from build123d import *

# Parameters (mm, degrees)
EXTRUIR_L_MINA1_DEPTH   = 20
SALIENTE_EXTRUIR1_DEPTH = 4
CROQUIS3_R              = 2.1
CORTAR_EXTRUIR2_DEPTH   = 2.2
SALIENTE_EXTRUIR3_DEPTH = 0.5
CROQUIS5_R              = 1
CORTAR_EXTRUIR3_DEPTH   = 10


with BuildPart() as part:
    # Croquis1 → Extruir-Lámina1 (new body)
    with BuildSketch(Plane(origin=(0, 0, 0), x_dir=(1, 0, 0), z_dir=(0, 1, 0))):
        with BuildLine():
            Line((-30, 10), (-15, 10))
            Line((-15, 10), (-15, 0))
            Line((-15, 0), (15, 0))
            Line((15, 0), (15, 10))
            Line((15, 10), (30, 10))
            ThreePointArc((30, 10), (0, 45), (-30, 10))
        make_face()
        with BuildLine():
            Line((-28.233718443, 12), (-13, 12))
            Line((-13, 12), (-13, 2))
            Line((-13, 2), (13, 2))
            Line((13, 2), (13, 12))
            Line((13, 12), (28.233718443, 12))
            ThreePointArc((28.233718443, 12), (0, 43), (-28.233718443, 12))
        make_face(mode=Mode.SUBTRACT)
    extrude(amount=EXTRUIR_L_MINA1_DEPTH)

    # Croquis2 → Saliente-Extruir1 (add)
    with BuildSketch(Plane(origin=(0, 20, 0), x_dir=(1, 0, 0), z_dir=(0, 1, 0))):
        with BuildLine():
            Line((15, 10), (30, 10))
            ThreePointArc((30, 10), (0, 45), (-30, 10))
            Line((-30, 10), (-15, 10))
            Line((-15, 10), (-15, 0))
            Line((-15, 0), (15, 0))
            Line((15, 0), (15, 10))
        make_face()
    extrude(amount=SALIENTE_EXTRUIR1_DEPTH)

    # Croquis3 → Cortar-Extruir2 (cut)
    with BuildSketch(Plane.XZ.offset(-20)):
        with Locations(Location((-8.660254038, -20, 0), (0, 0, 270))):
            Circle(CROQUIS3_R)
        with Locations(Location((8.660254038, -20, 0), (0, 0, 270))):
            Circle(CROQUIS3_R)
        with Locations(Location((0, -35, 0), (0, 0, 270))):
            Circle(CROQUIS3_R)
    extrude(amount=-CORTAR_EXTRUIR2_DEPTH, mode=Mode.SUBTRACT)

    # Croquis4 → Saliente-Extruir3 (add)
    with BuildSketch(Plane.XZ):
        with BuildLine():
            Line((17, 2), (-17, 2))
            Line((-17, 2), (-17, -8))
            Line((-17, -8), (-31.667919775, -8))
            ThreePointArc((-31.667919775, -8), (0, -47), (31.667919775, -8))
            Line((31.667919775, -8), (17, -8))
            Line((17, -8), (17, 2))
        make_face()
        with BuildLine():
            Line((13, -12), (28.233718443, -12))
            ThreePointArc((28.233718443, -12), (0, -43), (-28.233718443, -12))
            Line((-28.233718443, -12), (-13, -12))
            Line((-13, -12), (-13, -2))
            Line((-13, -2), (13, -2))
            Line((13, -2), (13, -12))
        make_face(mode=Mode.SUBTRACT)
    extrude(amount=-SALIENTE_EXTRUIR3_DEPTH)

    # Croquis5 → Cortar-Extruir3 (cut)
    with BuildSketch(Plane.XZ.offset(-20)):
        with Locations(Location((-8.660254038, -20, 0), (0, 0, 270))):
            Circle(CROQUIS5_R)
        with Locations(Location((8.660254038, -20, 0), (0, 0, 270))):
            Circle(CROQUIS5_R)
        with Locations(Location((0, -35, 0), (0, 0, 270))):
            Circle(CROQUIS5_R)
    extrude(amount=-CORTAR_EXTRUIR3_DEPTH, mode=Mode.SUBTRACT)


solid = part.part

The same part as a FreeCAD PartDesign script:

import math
import FreeCAD as App
import Part
import Sketcher

V = App.Vector

doc = App.newDocument("Part")
body = doc.addObject("PartDesign::Body", "Body")

# Sketch on XZ plane
sketch1 = doc.addObject("Sketcher::SketchObject", "Sketch")
body.addObject(sketch1)
sketch1.AttachmentSupport = (doc.XZ_Plane, [""])
sketch1.MapMode = "FlatFace"
sketch1.addGeometry([
    Part.LineSegment(V(-30, -10, 0), V(-15, -10, 0)),  # 0
    Part.LineSegment(V(-15, -10, 0), V(-15, 0, 0)),  # 1
    Part.LineSegment(V(-15, 0, 0), V(15, 0, 0)),  # 2
    Part.LineSegment(V(15, 0, 0), V(15, -10, 0)),  # 3
    Part.LineSegment(V(15, -10, 0), V(30, -10, 0)),  # 4
    Part.ArcOfCircle(Part.Circle(V(0, -14.642857, 0), V(0, 0, 1), 30.357143), math.radians(171.202589), math.radians(368.797411)),  # 5
    Part.LineSegment(V(-13, -12, 0), V(-28.233718, -12, 0)),  # 6
    Part.ArcOfCircle(Part.Circle(V(0, -14.642857, 0), V(0, 0, 1), 28.357143), math.radians(174.65233), math.radians(365.34767)),  # 7
    Part.LineSegment(V(28.233718, -12, 0), V(13, -12, 0)),  # 8
    Part.LineSegment(V(13, -12, 0), V(13, -2, 0)),  # 9
    Part.LineSegment(V(13, -2, 0), V(-13, -2, 0)),  # 10
    Part.LineSegment(V(-13, -2, 0), V(-13, -12, 0)),  # 11
], False)
sketch1.addConstraint([
    Sketcher.Constraint("Coincident", 0, 2, 1, 1),
    Sketcher.Constraint("Coincident", 1, 2, 2, 1),
    Sketcher.Constraint("Coincident", 2, 2, 3, 1),
    Sketcher.Constraint("Coincident", 3, 2, 4, 1),
    Sketcher.Constraint("Coincident", 4, 2, 5, 2),
    Sketcher.Constraint("Coincident", 5, 1, 0, 1),
    Sketcher.Constraint("Coincident", 6, 2, 7, 1),
    Sketcher.Constraint("Coincident", 7, 2, 8, 1),
    Sketcher.Constraint("Coincident", 8, 2, 9, 1),
    Sketcher.Constraint("Coincident", 9, 2, 10, 1),
    Sketcher.Constraint("Coincident", 10, 2, 11, 1),
    Sketcher.Constraint("Coincident", 11, 2, 6, 1),
    Sketcher.Constraint("Horizontal", 0),
    Sketcher.Constraint("Vertical", 1),
    Sketcher.Constraint("Horizontal", 2),
    Sketcher.Constraint("Vertical", 3),
    Sketcher.Constraint("Horizontal", 4),
    Sketcher.Constraint("Horizontal", 6),
    Sketcher.Constraint("Horizontal", 8),
    Sketcher.Constraint("Vertical", 9),
    Sketcher.Constraint("Horizontal", 10),
    Sketcher.Constraint("Vertical", 11),
    Sketcher.Constraint("Coincident", 7, 3, 5, 3),
    Sketcher.Constraint("Symmetric", 1, 2, 2, 2, -1, 1),
    Sketcher.Constraint("Symmetric", 4, 2, 5, 1, -2),
    Sketcher.Constraint("Symmetric", 8, 2, 11, 2, -2),
    Sketcher.Constraint("Equal", 3, 9),
    Sketcher.Constraint("DistanceX", 0, 1, 0, 2, 15.0),
    Sketcher.Constraint("DistanceX", 2, 1, 2, 2, 30.0),
    Sketcher.Constraint("DistanceX", 10, 2, 10, 1, 26.0),
    Sketcher.Constraint("DistanceY", 1, 1, 1, 2, 10.0),
    Sketcher.Constraint("DistanceY", 6, 2, -1, 1, 12.0),
    Sketcher.Constraint("Radius", 5, 30.357143),
    Sketcher.Constraint("Radius", 7, 28.357143),
])
pad1 = doc.addObject("PartDesign::Pad", "Pad")
body.addObject(pad1)
pad1.Profile = sketch1
pad1.Length = 20
pad1.Reversed = True

# Sketch on XZ plane
sketch2 = doc.addObject("Sketcher::SketchObject", "Sketch001")
body.addObject(sketch2)
sketch2.AttachmentSupport = (doc.XZ_Plane, [""])
sketch2.MapMode = "FlatFace"
sketch2.AttachmentOffset = App.Placement(V(0, 0, -20), App.Rotation())
sketch2.addGeometry([
    Part.LineSegment(V(15, -10, 0), V(30, -10, 0)),  # 0
    Part.ArcOfCircle(Part.Circle(V(0, -14.642857, 0), V(0, 0, 1), 30.357143), math.radians(171.202589), math.radians(368.797411)),  # 1
    Part.LineSegment(V(-30, -10, 0), V(-15, -10, 0)),  # 2
    Part.LineSegment(V(-15, -10, 0), V(-15, 0, 0)),  # 3
    Part.LineSegment(V(-15, 0, 0), V(15, 0, 0)),  # 4
    Part.LineSegment(V(15, 0, 0), V(15, -10, 0)),  # 5
], False)
sketch2.addConstraint([
    Sketcher.Constraint("Coincident", 0, 2, 1, 2),
    Sketcher.Constraint("Coincident", 1, 1, 2, 1),
    Sketcher.Constraint("Coincident", 2, 2, 3, 1),
    Sketcher.Constraint("Coincident", 3, 2, 4, 1),
    Sketcher.Constraint("Coincident", 4, 2, 5, 1),
    Sketcher.Constraint("Coincident", 5, 2, 0, 1),
    Sketcher.Constraint("Horizontal", 0),
    Sketcher.Constraint("Horizontal", 2),
    Sketcher.Constraint("Vertical", 3),
    Sketcher.Constraint("Horizontal", 4),
    Sketcher.Constraint("Vertical", 5),
    Sketcher.Constraint("Symmetric", 3, 2, 4, 2, -1, 1),
    Sketcher.Constraint("Symmetric", 0, 2, 1, 1, -2),
    Sketcher.Constraint("DistanceX", 0, 1, 0, 2, 15.0),
    Sketcher.Constraint("DistanceX", 4, 1, 4, 2, 30.0),
    Sketcher.Constraint("DistanceY", 3, 1, 3, 2, 10.0),
    Sketcher.Constraint("Radius", 1, 30.357143),
])
pad2 = doc.addObject("PartDesign::Pad", "Pad001")
body.addObject(pad2)
pad2.Profile = sketch2
pad2.Length = 4
pad2.Reversed = True

# Sketch on XZ plane
sketch3 = doc.addObject("Sketcher::SketchObject", "Sketch002")
body.addObject(sketch3)
sketch3.AttachmentSupport = (doc.XZ_Plane, [""])
sketch3.MapMode = "FlatFace"
sketch3.AttachmentOffset = App.Placement(V(0, 0, -20), App.Rotation())
sketch3.addGeometry([
    Part.Circle(V(-8.660254, -20, 0), V(0, 0, 1), 2.1),
    Part.Circle(V(8.660254, -20, 0), V(0, 0, 1), 2.1),
    Part.Circle(V(0, -35, 0), V(0, 0, 1), 2.1),
], False)
sketch3.addConstraint([
    Sketcher.Constraint("Equal", 0, 1),
    Sketcher.Constraint("Equal", 1, 2),
    Sketcher.Constraint("Symmetric", 0, 3, 1, 3, -2),
    Sketcher.Constraint("PointOnObject", 2, 3, -2),
    Sketcher.Constraint("Diameter", 0, 4.2),
    Sketcher.Constraint("DistanceY", 0, 3, -1, 1, 20.0),
    Sketcher.Constraint("DistanceY", 2, 3, -1, 1, 35.0),
    Sketcher.Constraint("DistanceX", 0, 3, 1, 3, 17.320508),
])
pocket1 = doc.addObject("PartDesign::Pocket", "Pocket")
body.addObject(pocket1)
pocket1.Profile = sketch3
pocket1.Length = 2.2

# Sketch on XZ plane
sketch4 = doc.addObject("Sketcher::SketchObject", "Sketch003")
body.addObject(sketch4)
sketch4.AttachmentSupport = (doc.XZ_Plane, [""])
sketch4.MapMode = "FlatFace"
sketch4.addGeometry([
    Part.LineSegment(V(17, 2, 0), V(-17, 2, 0)),  # 0
    Part.LineSegment(V(-17, 2, 0), V(-17, -8, 0)),  # 1
    Part.LineSegment(V(-17, -8, 0), V(-31.66792, -8, 0)),  # 2
    Part.ArcOfCircle(Part.Circle(V(0, -14.642857, 0), V(0, 0, 1), 32.357143), math.radians(168.153055), math.radians(371.846945)),  # 3
    Part.LineSegment(V(31.66792, -8, 0), V(17, -8, 0)),  # 4
    Part.LineSegment(V(17, -8, 0), V(17, 2, 0)),  # 5
    Part.LineSegment(V(13, -2, 0), V(13, -12, 0)),  # 6
    Part.LineSegment(V(13, -12, 0), V(28.233718, -12, 0)),  # 7
    Part.ArcOfCircle(Part.Circle(V(0, -14.642857, 0), V(0, 0, 1), 28.357143), math.radians(174.65233), math.radians(365.34767)),  # 8
    Part.LineSegment(V(-28.233718, -12, 0), V(-13, -12, 0)),  # 9
    Part.LineSegment(V(-13, -12, 0), V(-13, -2, 0)),  # 10
    Part.LineSegment(V(-13, -2, 0), V(13, -2, 0)),  # 11
], False)
sketch4.addConstraint([
    Sketcher.Constraint("Coincident", 0, 2, 1, 1),
    Sketcher.Constraint("Coincident", 1, 2, 2, 1),
    Sketcher.Constraint("Coincident", 2, 2, 3, 1),
    Sketcher.Constraint("Coincident", 3, 2, 4, 1),
    Sketcher.Constraint("Coincident", 4, 2, 5, 1),
    Sketcher.Constraint("Coincident", 5, 2, 0, 1),
    Sketcher.Constraint("Coincident", 6, 2, 7, 1),
    Sketcher.Constraint("Coincident", 7, 2, 8, 2),
    Sketcher.Constraint("Coincident", 8, 1, 9, 1),
    Sketcher.Constraint("Coincident", 9, 2, 10, 1),
    Sketcher.Constraint("Coincident", 10, 2, 11, 1),
    Sketcher.Constraint("Coincident", 11, 2, 6, 1),
    Sketcher.Constraint("Horizontal", 0),
    Sketcher.Constraint("Vertical", 1),
    Sketcher.Constraint("Horizontal", 2),
    Sketcher.Constraint("Horizontal", 4),
    Sketcher.Constraint("Vertical", 5),
    Sketcher.Constraint("Vertical", 6),
    Sketcher.Constraint("Horizontal", 7),
    Sketcher.Constraint("Horizontal", 9),
    Sketcher.Constraint("Vertical", 10),
    Sketcher.Constraint("Horizontal", 11),
    Sketcher.Constraint("Coincident", 8, 3, 3, 3),
    Sketcher.Constraint("Symmetric", 2, 2, 3, 2, -2),
    Sketcher.Constraint("Symmetric", 6, 2, 9, 2, -2),
    Sketcher.Constraint("Equal", 2, 4),
    Sketcher.Constraint("Equal", 5, 6),
    Sketcher.Constraint("DistanceX", 0, 2, 0, 1, 34.0),
    Sketcher.Constraint("DistanceX", 11, 1, 11, 2, 26.0),
    Sketcher.Constraint("DistanceY", 1, 2, 1, 1, 10.0),
    Sketcher.Constraint("DistanceY", -1, 1, 0, 2, 2.0),
    Sketcher.Constraint("DistanceY", 6, 2, -1, 1, 12.0),
    Sketcher.Constraint("Radius", 3, 32.357143),
    Sketcher.Constraint("Radius", 8, 28.357143),
    Sketcher.Constraint("DistanceX", 2, 2, 2, 1, 14.66792),
])
pad3 = doc.addObject("PartDesign::Pad", "Pad002")
body.addObject(pad3)
pad3.Profile = sketch4
pad3.Length = 0.5
pad3.Reversed = True

# Sketch on XZ plane
sketch5 = doc.addObject("Sketcher::SketchObject", "Sketch004")
body.addObject(sketch5)
sketch5.AttachmentSupport = (doc.XZ_Plane, [""])
sketch5.MapMode = "FlatFace"
sketch5.AttachmentOffset = App.Placement(V(0, 0, -20), App.Rotation())
sketch5.addGeometry([
    Part.Circle(V(-8.660254, -20, 0), V(0, 0, 1), 1),
    Part.Circle(V(8.660254, -20, 0), V(0, 0, 1), 1),
    Part.Circle(V(0, -35, 0), V(0, 0, 1), 1),
], False)
sketch5.addConstraint([
    Sketcher.Constraint("Equal", 0, 1),
    Sketcher.Constraint("Equal", 1, 2),
    Sketcher.Constraint("Symmetric", 0, 3, 1, 3, -2),
    Sketcher.Constraint("PointOnObject", 2, 3, -2),
    Sketcher.Constraint("Diameter", 0, 2.0),
    Sketcher.Constraint("DistanceY", 0, 3, -1, 1, 20.0),
    Sketcher.Constraint("DistanceY", 2, 3, -1, 1, 35.0),
    Sketcher.Constraint("DistanceX", 0, 3, 1, 3, 17.320508),
])
pocket2 = doc.addObject("PartDesign::Pocket", "Pocket001")
body.addObject(pocket2)
pocket2.Profile = sketch5
pocket2.Length = 10

doc.recompute()
